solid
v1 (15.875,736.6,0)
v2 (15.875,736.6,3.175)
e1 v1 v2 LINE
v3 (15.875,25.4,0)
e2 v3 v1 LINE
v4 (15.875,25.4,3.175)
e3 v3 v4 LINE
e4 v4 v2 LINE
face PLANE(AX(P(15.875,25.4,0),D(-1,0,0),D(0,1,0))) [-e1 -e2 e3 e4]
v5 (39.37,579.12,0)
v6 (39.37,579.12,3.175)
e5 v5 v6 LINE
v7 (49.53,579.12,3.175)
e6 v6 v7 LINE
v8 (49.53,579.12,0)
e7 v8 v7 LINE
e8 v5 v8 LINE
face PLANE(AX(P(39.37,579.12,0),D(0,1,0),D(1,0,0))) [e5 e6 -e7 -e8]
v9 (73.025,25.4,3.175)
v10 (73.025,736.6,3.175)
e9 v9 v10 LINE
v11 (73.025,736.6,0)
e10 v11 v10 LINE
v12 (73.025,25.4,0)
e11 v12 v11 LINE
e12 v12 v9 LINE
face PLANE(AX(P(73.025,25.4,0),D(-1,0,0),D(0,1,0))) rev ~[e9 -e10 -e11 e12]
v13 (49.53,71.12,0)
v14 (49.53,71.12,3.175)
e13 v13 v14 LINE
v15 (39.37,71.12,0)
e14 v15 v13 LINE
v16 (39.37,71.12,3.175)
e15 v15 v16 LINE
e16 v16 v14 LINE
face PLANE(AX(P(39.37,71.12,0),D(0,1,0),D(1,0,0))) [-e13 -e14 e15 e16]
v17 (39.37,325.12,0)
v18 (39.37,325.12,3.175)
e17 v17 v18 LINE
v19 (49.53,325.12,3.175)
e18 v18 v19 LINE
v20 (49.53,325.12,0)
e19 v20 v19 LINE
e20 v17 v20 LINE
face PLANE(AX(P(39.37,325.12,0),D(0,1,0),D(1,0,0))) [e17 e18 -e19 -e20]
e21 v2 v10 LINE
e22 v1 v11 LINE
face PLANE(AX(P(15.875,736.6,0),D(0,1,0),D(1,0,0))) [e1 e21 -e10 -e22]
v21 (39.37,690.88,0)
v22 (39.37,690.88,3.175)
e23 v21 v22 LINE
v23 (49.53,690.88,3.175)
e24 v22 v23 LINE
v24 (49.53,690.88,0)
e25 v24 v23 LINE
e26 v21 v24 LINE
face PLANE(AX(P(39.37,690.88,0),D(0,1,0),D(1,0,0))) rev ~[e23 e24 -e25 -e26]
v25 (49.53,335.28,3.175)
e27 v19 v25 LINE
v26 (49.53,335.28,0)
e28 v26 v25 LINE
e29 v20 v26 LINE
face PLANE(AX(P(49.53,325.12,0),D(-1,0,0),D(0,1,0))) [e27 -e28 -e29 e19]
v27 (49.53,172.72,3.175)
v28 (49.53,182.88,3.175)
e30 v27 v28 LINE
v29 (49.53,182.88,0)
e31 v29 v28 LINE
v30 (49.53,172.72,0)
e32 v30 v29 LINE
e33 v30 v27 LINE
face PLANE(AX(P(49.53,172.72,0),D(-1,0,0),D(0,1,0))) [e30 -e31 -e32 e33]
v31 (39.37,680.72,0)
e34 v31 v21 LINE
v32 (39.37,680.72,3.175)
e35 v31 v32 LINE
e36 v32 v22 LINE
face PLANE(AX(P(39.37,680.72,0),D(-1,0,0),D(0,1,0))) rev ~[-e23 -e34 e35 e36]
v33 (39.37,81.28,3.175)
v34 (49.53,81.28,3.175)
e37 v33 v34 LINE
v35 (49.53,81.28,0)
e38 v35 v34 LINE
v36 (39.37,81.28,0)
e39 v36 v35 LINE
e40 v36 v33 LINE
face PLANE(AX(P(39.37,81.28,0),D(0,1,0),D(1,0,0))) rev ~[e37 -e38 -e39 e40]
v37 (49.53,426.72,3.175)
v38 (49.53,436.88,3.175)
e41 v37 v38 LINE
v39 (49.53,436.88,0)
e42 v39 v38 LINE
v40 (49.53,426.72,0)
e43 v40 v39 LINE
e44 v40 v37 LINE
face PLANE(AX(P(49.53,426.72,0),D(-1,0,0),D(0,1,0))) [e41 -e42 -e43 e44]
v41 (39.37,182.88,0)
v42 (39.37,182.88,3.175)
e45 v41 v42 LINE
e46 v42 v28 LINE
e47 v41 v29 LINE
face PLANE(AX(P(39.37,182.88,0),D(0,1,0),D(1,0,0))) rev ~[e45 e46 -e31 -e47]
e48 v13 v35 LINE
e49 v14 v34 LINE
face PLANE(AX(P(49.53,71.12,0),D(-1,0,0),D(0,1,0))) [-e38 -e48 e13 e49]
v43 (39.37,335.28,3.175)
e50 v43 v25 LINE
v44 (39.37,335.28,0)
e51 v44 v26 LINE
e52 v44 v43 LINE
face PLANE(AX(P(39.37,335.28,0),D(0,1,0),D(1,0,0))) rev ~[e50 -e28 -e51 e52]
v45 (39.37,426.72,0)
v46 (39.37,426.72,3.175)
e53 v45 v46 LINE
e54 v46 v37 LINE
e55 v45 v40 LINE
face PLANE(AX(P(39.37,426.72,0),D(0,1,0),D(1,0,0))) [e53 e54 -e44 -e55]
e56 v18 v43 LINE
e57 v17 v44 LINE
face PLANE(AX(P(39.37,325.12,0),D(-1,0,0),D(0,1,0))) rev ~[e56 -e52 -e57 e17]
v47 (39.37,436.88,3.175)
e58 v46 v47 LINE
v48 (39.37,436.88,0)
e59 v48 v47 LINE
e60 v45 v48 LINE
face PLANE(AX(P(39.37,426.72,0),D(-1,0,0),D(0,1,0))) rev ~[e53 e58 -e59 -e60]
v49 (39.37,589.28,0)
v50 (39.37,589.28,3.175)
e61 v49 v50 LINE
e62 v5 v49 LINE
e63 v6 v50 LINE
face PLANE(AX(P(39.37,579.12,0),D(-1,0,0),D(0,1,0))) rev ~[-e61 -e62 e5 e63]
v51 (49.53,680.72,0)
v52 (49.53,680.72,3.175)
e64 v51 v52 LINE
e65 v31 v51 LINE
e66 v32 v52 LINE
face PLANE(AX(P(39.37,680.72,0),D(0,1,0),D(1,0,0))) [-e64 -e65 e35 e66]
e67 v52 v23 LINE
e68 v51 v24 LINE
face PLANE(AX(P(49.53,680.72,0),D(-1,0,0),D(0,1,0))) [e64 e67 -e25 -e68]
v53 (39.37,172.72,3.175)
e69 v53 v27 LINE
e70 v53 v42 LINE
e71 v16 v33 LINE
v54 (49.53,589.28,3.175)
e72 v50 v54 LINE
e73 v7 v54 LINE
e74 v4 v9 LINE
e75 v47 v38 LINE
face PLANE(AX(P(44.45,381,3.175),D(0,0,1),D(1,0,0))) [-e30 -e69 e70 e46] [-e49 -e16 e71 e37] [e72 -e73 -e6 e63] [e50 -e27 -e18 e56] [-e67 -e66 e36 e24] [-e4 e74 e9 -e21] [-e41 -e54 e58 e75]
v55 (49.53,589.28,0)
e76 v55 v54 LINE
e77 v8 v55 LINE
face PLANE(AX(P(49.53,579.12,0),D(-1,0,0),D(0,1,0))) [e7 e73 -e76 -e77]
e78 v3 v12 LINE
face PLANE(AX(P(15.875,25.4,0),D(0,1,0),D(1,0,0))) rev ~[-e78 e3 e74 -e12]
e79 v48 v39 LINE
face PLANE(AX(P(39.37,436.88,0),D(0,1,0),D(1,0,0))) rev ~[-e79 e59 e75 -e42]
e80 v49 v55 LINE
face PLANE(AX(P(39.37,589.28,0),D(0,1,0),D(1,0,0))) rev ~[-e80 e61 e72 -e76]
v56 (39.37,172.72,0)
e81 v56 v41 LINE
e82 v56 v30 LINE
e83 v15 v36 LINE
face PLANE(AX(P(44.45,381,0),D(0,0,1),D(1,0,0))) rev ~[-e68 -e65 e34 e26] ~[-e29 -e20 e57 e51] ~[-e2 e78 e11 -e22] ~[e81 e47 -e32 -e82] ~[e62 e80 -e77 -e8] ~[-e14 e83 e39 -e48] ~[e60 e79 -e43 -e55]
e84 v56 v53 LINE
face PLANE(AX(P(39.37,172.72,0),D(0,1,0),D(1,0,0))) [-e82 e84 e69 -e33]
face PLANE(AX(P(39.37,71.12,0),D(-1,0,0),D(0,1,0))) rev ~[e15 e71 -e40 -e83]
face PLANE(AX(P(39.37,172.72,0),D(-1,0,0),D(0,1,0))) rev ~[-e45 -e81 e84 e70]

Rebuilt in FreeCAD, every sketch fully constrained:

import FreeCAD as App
import Part
import Sketcher
from FreeCAD import Vector
Q = App.Units.Quantity


def add_polygon(sketch, points):
    """Adds a closed chain of lines whose ends are joined by coincident constraints."""
    first, n = sketch.GeometryCount, len(points)
    for a, b in zip(points, points[1:] + points[:1]):
        sketch.addGeometry(Part.LineSegment(App.Vector(*a, 0), App.Vector(*b, 0)), False)
    for i in range(n):
        sketch.addConstraint(Sketcher.Constraint("Coincident", first + i, 2, first + (i + 1) % n, 1))

doc = App.newDocument("Part")
body = doc.addObject("PartDesign::Body", "Body")

sketch1 = body.newObject("Sketcher::SketchObject", "Sketch")
sketch1.AttachmentSupport = (doc.getObject("XY_Plane"), [""])
sketch1.MapMode = "FlatFace"
add_polygon(sketch1, [(15.875, 736.6), (15.875, 25.4), (73.025, 25.4), (73.025, 736.6)])
add_polygon(sketch1, [(49.53, 71.12), (39.37, 71.12), (39.37, 81.28), (49.53, 81.28)])
add_polygon(sketch1, [(49.53, 172.72), (39.37, 172.72), (39.37, 182.88), (49.53, 182.88)])
add_polygon(sketch1, [(49.53, 325.12), (39.37, 325.12), (39.37, 335.28), (49.53, 335.28)])
add_polygon(sketch1, [(49.53, 426.72), (39.37, 426.72), (39.37, 436.88), (49.53, 436.88)])
add_polygon(sketch1, [(49.53, 579.12), (39.37, 579.12), (39.37, 589.28), (49.53, 589.28)])
add_polygon(sketch1, [(49.53, 680.72), (39.37, 680.72), (39.37, 690.88), (49.53, 690.88)])
sketch1.addConstraint([
    Sketcher.Constraint("Vertical", 0),
    Sketcher.Constraint("Horizontal", 1),
    Sketcher.Constraint("Vertical", 2),
    Sketcher.Constraint("Horizontal", 3),
    Sketcher.Constraint("Horizontal", 4),
    Sketcher.Constraint("Vertical", 5),
    Sketcher.Constraint("Horizontal", 6),
    Sketcher.Constraint("Vertical", 7),
    Sketcher.Constraint("Horizontal", 8),
    Sketcher.Constraint("Vertical", 9),
    Sketcher.Constraint("Horizontal", 10),
    Sketcher.Constraint("Vertical", 11),
    Sketcher.Constraint("Horizontal", 12),
    Sketcher.Constraint("Vertical", 13),
    Sketcher.Constraint("Horizontal", 14),
    Sketcher.Constraint("Vertical", 15),
    Sketcher.Constraint("Horizontal", 16),
    Sketcher.Constraint("Vertical", 17),
    Sketcher.Constraint("Horizontal", 18),
    Sketcher.Constraint("Vertical", 19),
    Sketcher.Constraint("Horizontal", 20),
    Sketcher.Constraint("Vertical", 21),
    Sketcher.Constraint("Horizontal", 22),
    Sketcher.Constraint("Vertical", 23),
    Sketcher.Constraint("Horizontal", 24),
    Sketcher.Constraint("Vertical", 25),
    Sketcher.Constraint("Horizontal", 26),
    Sketcher.Constraint("Vertical", 27),
    Sketcher.Constraint("Vertical", 5, 2, 8, 2),
    Sketcher.Constraint("Vertical", 7, 2, 10, 2),
    Sketcher.Constraint("Vertical", 9, 2, 12, 2),
    Sketcher.Constraint("Vertical", 11, 2, 14, 2),
    Sketcher.Constraint("Vertical", 13, 2, 16, 2),
    Sketcher.Constraint("Vertical", 15, 2, 18, 2),
    Sketcher.Constraint("Vertical", 17, 2, 20, 2),
    Sketcher.Constraint("Vertical", 19, 2, 22, 2),
    Sketcher.Constraint("Vertical", 21, 2, 24, 2),
    Sketcher.Constraint("Vertical", 23, 2, 26, 2),
    Sketcher.Constraint("Equal", 26, 5),
    Sketcher.Constraint("Equal", 7, 9),
    Sketcher.Constraint("Equal", 11, 13),
    Sketcher.Constraint("Equal", 15, 17),
    Sketcher.Constraint("Equal", 19, 21),
    Sketcher.Constraint("Equal", 23, 25),
    Sketcher.Constraint("DistanceY", 0, 2, 0, 1, Q("28 in")),
    Sketcher.Constraint("DistanceX", 4, 2, 4, 1, Q("0.4 in")),
    Sketcher.Constraint("DistanceY", -1, 1, 0, 2, Q("1 in")),
    Sketcher.Constraint("DistanceY", 4, 2, 8, 2, Q("4 in")),
    Sketcher.Constraint("DistanceY", 8, 2, 12, 2, Q("6 in")),
    Sketcher.Constraint("DistanceY", 12, 2, 16, 2, Q("4 in")),
    Sketcher.Constraint("DistanceY", 16, 2, 20, 2, Q("6 in")),
    Sketcher.Constraint("DistanceY", 20, 2, 24, 2, Q("4 in")),
    Sketcher.Constraint("DistanceX", 1, 1, 1, 2, Q("2.25 in")),
    Sketcher.Constraint("DistanceY", -1, 1, 4, 2, Q("2.8 in")),
    Sketcher.Constraint("DistanceX", -1, 1, 4, 2, Q("1.55 in")),
    Sketcher.Constraint("DistanceX", -1, 1, 0, 2, Q("0.625 in")),
])
pad1 = body.newObject("PartDesign::Pad", "Pad")
pad1.Profile = sketch1
pad1.Length = Q("0.125 in")

doc.recompute()
